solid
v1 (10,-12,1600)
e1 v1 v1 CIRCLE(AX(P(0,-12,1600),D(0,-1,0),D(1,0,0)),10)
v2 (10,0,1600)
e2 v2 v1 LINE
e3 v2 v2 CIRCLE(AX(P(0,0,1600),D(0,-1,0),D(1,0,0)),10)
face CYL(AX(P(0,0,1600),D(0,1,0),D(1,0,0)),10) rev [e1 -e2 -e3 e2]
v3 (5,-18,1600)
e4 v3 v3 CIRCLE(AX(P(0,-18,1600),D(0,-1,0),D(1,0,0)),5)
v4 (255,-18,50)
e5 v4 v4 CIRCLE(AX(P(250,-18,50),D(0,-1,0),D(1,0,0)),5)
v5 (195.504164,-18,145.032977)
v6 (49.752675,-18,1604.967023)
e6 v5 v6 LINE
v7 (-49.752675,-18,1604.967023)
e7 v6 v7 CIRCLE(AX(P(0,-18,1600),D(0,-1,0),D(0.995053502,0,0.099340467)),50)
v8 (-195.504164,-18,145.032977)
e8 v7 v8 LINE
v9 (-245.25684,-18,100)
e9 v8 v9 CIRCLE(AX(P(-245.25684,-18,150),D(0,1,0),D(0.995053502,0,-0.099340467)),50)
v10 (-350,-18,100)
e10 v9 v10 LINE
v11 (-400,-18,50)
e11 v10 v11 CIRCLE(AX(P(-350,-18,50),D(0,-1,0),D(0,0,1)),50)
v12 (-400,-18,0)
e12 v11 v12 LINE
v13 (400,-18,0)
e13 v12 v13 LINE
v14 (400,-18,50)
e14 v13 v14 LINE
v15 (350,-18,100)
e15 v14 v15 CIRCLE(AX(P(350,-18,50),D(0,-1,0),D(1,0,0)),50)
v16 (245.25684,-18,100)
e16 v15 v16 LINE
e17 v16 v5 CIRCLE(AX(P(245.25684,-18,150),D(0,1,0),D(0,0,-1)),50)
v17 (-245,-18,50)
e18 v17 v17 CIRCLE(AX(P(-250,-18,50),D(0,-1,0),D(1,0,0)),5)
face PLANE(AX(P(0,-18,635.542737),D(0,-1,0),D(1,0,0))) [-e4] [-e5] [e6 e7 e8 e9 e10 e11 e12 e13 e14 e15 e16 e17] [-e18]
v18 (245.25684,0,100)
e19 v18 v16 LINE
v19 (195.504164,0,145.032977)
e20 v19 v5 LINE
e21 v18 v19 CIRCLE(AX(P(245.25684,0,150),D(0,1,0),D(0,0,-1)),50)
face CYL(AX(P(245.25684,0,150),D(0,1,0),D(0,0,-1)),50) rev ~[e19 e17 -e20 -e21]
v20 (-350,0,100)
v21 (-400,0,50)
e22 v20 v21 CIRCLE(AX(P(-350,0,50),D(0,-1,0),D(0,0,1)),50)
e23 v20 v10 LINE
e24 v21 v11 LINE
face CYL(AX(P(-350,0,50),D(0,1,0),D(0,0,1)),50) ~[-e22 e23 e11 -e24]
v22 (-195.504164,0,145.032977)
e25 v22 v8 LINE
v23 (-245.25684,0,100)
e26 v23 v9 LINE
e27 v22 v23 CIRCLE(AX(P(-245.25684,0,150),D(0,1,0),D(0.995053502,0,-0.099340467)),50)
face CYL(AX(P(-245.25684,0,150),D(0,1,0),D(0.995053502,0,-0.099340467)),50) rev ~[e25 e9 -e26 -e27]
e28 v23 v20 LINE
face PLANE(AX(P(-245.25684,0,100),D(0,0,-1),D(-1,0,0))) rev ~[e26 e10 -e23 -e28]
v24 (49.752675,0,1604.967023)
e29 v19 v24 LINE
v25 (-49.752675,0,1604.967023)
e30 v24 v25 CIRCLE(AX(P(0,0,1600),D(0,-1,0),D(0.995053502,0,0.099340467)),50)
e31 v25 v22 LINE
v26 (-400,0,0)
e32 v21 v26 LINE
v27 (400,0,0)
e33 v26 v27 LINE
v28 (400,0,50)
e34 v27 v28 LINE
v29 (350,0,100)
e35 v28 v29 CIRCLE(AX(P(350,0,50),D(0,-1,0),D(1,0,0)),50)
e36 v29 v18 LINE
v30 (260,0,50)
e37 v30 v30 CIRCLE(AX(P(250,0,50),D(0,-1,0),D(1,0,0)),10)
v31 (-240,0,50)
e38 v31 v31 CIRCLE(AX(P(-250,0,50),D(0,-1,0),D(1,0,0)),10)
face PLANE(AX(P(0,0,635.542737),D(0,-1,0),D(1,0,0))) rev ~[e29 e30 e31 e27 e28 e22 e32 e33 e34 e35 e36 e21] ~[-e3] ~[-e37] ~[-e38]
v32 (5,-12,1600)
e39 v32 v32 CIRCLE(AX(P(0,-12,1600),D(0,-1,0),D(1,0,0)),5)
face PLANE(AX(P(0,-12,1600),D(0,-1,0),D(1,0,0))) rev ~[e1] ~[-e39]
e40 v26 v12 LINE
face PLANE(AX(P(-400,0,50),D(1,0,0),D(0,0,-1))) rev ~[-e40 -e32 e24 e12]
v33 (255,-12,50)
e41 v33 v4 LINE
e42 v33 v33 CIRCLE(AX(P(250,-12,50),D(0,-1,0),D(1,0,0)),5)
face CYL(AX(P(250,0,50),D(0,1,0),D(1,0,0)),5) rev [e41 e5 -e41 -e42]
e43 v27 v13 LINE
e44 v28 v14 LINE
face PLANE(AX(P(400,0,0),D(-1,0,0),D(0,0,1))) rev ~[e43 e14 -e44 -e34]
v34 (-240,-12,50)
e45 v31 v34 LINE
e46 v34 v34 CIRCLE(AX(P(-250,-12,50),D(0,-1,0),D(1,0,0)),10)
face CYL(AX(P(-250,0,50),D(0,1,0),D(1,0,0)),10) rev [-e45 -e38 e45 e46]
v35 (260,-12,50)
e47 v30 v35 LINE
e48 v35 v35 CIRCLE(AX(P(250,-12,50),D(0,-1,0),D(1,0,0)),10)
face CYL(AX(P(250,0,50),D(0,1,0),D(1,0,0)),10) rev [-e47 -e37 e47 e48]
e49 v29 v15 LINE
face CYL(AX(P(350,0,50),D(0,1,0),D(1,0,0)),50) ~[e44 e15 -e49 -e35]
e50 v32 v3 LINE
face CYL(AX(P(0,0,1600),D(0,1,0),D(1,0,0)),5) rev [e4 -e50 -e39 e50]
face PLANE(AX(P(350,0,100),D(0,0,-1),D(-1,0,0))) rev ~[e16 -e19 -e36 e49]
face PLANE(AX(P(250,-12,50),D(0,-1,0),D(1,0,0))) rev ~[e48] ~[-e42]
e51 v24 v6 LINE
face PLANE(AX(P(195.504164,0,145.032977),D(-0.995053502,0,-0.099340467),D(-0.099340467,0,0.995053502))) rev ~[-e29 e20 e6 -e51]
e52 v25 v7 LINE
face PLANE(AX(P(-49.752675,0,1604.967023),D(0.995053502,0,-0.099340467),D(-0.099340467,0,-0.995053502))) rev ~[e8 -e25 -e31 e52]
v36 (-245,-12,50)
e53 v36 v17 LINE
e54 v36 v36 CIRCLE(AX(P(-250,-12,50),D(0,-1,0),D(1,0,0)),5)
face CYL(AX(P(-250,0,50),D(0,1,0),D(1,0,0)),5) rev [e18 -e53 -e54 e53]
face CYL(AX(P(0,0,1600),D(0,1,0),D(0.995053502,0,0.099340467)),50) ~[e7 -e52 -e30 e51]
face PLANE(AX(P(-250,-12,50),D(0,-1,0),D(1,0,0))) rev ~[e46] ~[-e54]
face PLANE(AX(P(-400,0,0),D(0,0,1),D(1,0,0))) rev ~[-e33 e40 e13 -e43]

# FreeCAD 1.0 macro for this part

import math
import FreeCAD as App
import Part
import Sketcher
Q = App.Units.Quantity

doc = App.newDocument("Part")
body = doc.addObject("PartDesign::Body", "Body")

# Sketch on XZ plane
sketch1 = body.newObject("Sketcher::SketchObject", "Sketch")
sketch1.AttachmentSupport = (doc.getObject("XZ_Plane"), [""])
sketch1.MapMode = "FlatFace"
sketch1.addGeometry(Part.LineSegment(App.Vector(-400, 0, 0), App.Vector(400, 0, 0)), False)
sketch1.addGeometry(Part.LineSegment(App.Vector(400, 0, 0), App.Vector(400, 50, 0)), False)
sketch1.addGeometry(Part.ArcOfCircle(Part.Circle(App.Vector(350, 50, 0), App.Vector(0, 0, 1), 50), math.radians(0), math.radians(90)), False)
sketch1.addGeometry(Part.LineSegment(App.Vector(350, 100, 0), App.Vector(245, 100, 0)), False)
sketch1.addGeometry(Part.ArcOfCircle(Part.Circle(App.Vector(245, 150, 0), App.Vector(0, 0, 1), 50), math.radians(-174), math.radians(-90)), False)
sketch1.addGeometry(Part.LineSegment(App.Vector(196, 145, 0), App.Vector(50, 1605, 0)), False)
sketch1.addGeometry(Part.ArcOfCircle(Part.Circle(App.Vector(0, 1600, 0), App.Vector(0, 0, 1), 50), math.radians(6), math.radians(174)), False)
sketch1.addGeometry(Part.LineSegment(App.Vector(-50, 1605, 0), App.Vector(-196, 145, 0)), False)
sketch1.addGeometry(Part.ArcOfCircle(Part.Circle(App.Vector(-245, 150, 0), App.Vector(0, 0, 1), 50), math.radians(-90), math.radians(-6)), False)
sketch1.addGeometry(Part.LineSegment(App.Vector(-245, 100, 0), App.Vector(-350, 100, 0)), False)
sketch1.addGeometry(Part.ArcOfCircle(Part.Circle(App.Vector(-350, 50, 0), App.Vector(0, 0, 1), 50), math.radians(90), math.radians(180)), False)
sketch1.addGeometry(Part.LineSegment(App.Vector(-400, 50, 0), App.Vector(-400, 0, 0)), False)
sketch1.addGeometry(Part.Circle(App.Vector(-250, 50, 0), App.Vector(0, 0, 1), 5), False)
sketch1.addGeometry(Part.Circle(App.Vector(250, 50, 0), App.Vector(0, 0, 1), 5), False)
sketch1.addGeometry(Part.Circle(App.Vector(0, 1600, 0), App.Vector(0, 0, 1), 5), False)
sketch1.addConstraint(Sketcher.Constraint("Coincident", 0, 2, 1, 1))
sketch1.addConstraint(Sketcher.Constraint("Tangent", 1, 2, 2, 1))
sketch1.addConstraint(Sketcher.Constraint("Tangent", 2, 2, 3, 1))
sketch1.addConstraint(Sketcher.Constraint("Tangent", 3, 2, 4, 2))
sketch1.addConstraint(Sketcher.Constraint("Tangent", 4, 1, 5, 1))
sketch1.addConstraint(Sketcher.Constraint("Tangent", 5, 2, 6, 1))
sketch1.addConstraint(Sketcher.Constraint("Tangent", 6, 2, 7, 1))
sketch1.addConstraint(Sketcher.Constraint("Tangent", 7, 2, 8, 2))
sketch1.addConstraint(Sketcher.Constraint("Tangent", 8, 1, 9, 1))
sketch1.addConstraint(Sketcher.Constraint("Tangent", 9, 2, 10, 1))
sketch1.addConstraint(Sketcher.Constraint("Tangent", 10, 2, 11, 1))
sketch1.addConstraint(Sketcher.Constraint("Coincident", 11, 2, 0, 1))
sketch1.addConstraint(Sketcher.Constraint("Horizontal", 0))
sketch1.addConstraint(Sketcher.Constraint("Vertical", 1))
sketch1.addConstraint(Sketcher.Constraint("Horizontal", 3))
sketch1.addConstraint(Sketcher.Constraint("Horizontal", 9))
sketch1.addConstraint(Sketcher.Constraint("Vertical", 11))
sketch1.addConstraint(Sketcher.Constraint("Coincident", 14, 3, 6, 3))
sketch1.addConstraint(Sketcher.Constraint("Equal", 2, 4))
sketch1.addConstraint(Sketcher.Constraint("Equal", 4, 6))
sketch1.addConstraint(Sketcher.Constraint("Equal", 6, 8))
sketch1.addConstraint(Sketcher.Constraint("Equal", 8, 10))
sketch1.addConstraint(Sketcher.Constraint("Equal", 12, 13))
sketch1.addConstraint(Sketcher.Constraint("Equal", 13, 14))
sketch1.addConstraint(Sketcher.Constraint("Symmetric", 0, 2, 11, 2, -1, 1))
sketch1.addConstraint(Sketcher.Constraint("Symmetric", 4, 3, 8, 3, -2))
sketch1.addConstraint(Sketcher.Constraint("Symmetric", 12, 3, 13, 3, -2))
sketch1.addConstraint(Sketcher.Constraint("PointOnObject", 6, 3, -2))
sketch1.addConstraint(Sketcher.Constraint("Horizontal", 10, 3, 12, 3))
sketch1.addConstraint(Sketcher.Constraint("Diameter", 12, Q("10 mm")))
sketch1.addConstraint(Sketcher.Constraint("Radius", 2, Q("50 mm")))
sketch1.addConstraint(Sketcher.Constraint("DistanceX", 0, 1, 0, 2, Q("800 mm")))
sketch1.addConstraint(Sketcher.Constraint("DistanceY", 1, 1, 1, 2, Q("50 mm")))
sketch1.addConstraint(Sketcher.Constraint("DistanceY", -1, 1, 6, 3, Q("1600 mm")))
sketch1.addConstraint(Sketcher.Constraint("DistanceX", 12, 3, -1, 1, Q("250 mm")))
sketch1.addConstraint(Sketcher.Constraint("DistanceX", 3, 2, 3, 1, Q("104.74316 mm")))
pad1 = body.newObject("PartDesign::Pad", "Pad")
pad1.Profile = sketch1
pad1.Length = 18

# Sketch on XZ plane
sketch2 = body.newObject("Sketcher::SketchObject", "Sketch001")
sketch2.AttachmentSupport = (doc.getObject("XZ_Plane"), [""])
sketch2.MapMode = "FlatFace"
sketch2.addGeometry(Part.Circle(App.Vector(0, 1600, 0), App.Vector(0, 0, 1), 10), False)
sketch2.addGeometry(Part.Circle(App.Vector(0, 1600, 0), App.Vector(0, 0, 1), 5), False)
sketch2.addGeometry(Part.Circle(App.Vector(250, 50, 0), App.Vector(0, 0, 1), 10), False)
sketch2.addGeometry(Part.Circle(App.Vector(250, 50, 0), App.Vector(0, 0, 1), 5), False)
sketch2.addGeometry(Part.Circle(App.Vector(-250, 50, 0), App.Vector(0, 0, 1), 10), False)
sketch2.addGeometry(Part.Circle(App.Vector(-250, 50, 0), App.Vector(0, 0, 1), 5), False)
sketch2.addConstraint(Sketcher.Constraint("Coincident", 1, 3, 0, 3))
sketch2.addConstraint(Sketcher.Constraint("Coincident", 3, 3, 2, 3))
sketch2.addConstraint(Sketcher.Constraint("Coincident", 5, 3, 4, 3))
sketch2.addConstraint(Sketcher.Constraint("Equal", 0, 2))
sketch2.addConstraint(Sketcher.Constraint("Equal", 1, 3))
sketch2.addConstraint(Sketcher.Constraint("Equal", 2, 4))
sketch2.addConstraint(Sketcher.Constraint("Equal", 3, 5))
sketch2.addConstraint(Sketcher.Constraint("Symmetric", 2, 3, 4, 3, -2))
sketch2.addConstraint(Sketcher.Constraint("PointOnObject", 0, 3, -2))
sketch2.addConstraint(Sketcher.Constraint("Diameter", 0, Q("20 mm")))
sketch2.addConstraint(Sketcher.Constraint("Diameter", 1, Q("10 mm")))
sketch2.addConstraint(Sketcher.Constraint("DistanceY", -1, 1, 0, 3, Q("1600 mm")))
sketch2.addConstraint(Sketcher.Constraint("DistanceX", -1, 1, 2, 3, Q("250 mm")))
sketch2.addConstraint(Sketcher.Constraint("DistanceY", -1, 1, 2, 3, Q("50 mm")))
pocket1 = body.newObject("PartDesign::Pocket", "Pocket")
pocket1.Profile = sketch2
pocket1.Length = 12
pocket1.Reversed = True

doc.recompute()
